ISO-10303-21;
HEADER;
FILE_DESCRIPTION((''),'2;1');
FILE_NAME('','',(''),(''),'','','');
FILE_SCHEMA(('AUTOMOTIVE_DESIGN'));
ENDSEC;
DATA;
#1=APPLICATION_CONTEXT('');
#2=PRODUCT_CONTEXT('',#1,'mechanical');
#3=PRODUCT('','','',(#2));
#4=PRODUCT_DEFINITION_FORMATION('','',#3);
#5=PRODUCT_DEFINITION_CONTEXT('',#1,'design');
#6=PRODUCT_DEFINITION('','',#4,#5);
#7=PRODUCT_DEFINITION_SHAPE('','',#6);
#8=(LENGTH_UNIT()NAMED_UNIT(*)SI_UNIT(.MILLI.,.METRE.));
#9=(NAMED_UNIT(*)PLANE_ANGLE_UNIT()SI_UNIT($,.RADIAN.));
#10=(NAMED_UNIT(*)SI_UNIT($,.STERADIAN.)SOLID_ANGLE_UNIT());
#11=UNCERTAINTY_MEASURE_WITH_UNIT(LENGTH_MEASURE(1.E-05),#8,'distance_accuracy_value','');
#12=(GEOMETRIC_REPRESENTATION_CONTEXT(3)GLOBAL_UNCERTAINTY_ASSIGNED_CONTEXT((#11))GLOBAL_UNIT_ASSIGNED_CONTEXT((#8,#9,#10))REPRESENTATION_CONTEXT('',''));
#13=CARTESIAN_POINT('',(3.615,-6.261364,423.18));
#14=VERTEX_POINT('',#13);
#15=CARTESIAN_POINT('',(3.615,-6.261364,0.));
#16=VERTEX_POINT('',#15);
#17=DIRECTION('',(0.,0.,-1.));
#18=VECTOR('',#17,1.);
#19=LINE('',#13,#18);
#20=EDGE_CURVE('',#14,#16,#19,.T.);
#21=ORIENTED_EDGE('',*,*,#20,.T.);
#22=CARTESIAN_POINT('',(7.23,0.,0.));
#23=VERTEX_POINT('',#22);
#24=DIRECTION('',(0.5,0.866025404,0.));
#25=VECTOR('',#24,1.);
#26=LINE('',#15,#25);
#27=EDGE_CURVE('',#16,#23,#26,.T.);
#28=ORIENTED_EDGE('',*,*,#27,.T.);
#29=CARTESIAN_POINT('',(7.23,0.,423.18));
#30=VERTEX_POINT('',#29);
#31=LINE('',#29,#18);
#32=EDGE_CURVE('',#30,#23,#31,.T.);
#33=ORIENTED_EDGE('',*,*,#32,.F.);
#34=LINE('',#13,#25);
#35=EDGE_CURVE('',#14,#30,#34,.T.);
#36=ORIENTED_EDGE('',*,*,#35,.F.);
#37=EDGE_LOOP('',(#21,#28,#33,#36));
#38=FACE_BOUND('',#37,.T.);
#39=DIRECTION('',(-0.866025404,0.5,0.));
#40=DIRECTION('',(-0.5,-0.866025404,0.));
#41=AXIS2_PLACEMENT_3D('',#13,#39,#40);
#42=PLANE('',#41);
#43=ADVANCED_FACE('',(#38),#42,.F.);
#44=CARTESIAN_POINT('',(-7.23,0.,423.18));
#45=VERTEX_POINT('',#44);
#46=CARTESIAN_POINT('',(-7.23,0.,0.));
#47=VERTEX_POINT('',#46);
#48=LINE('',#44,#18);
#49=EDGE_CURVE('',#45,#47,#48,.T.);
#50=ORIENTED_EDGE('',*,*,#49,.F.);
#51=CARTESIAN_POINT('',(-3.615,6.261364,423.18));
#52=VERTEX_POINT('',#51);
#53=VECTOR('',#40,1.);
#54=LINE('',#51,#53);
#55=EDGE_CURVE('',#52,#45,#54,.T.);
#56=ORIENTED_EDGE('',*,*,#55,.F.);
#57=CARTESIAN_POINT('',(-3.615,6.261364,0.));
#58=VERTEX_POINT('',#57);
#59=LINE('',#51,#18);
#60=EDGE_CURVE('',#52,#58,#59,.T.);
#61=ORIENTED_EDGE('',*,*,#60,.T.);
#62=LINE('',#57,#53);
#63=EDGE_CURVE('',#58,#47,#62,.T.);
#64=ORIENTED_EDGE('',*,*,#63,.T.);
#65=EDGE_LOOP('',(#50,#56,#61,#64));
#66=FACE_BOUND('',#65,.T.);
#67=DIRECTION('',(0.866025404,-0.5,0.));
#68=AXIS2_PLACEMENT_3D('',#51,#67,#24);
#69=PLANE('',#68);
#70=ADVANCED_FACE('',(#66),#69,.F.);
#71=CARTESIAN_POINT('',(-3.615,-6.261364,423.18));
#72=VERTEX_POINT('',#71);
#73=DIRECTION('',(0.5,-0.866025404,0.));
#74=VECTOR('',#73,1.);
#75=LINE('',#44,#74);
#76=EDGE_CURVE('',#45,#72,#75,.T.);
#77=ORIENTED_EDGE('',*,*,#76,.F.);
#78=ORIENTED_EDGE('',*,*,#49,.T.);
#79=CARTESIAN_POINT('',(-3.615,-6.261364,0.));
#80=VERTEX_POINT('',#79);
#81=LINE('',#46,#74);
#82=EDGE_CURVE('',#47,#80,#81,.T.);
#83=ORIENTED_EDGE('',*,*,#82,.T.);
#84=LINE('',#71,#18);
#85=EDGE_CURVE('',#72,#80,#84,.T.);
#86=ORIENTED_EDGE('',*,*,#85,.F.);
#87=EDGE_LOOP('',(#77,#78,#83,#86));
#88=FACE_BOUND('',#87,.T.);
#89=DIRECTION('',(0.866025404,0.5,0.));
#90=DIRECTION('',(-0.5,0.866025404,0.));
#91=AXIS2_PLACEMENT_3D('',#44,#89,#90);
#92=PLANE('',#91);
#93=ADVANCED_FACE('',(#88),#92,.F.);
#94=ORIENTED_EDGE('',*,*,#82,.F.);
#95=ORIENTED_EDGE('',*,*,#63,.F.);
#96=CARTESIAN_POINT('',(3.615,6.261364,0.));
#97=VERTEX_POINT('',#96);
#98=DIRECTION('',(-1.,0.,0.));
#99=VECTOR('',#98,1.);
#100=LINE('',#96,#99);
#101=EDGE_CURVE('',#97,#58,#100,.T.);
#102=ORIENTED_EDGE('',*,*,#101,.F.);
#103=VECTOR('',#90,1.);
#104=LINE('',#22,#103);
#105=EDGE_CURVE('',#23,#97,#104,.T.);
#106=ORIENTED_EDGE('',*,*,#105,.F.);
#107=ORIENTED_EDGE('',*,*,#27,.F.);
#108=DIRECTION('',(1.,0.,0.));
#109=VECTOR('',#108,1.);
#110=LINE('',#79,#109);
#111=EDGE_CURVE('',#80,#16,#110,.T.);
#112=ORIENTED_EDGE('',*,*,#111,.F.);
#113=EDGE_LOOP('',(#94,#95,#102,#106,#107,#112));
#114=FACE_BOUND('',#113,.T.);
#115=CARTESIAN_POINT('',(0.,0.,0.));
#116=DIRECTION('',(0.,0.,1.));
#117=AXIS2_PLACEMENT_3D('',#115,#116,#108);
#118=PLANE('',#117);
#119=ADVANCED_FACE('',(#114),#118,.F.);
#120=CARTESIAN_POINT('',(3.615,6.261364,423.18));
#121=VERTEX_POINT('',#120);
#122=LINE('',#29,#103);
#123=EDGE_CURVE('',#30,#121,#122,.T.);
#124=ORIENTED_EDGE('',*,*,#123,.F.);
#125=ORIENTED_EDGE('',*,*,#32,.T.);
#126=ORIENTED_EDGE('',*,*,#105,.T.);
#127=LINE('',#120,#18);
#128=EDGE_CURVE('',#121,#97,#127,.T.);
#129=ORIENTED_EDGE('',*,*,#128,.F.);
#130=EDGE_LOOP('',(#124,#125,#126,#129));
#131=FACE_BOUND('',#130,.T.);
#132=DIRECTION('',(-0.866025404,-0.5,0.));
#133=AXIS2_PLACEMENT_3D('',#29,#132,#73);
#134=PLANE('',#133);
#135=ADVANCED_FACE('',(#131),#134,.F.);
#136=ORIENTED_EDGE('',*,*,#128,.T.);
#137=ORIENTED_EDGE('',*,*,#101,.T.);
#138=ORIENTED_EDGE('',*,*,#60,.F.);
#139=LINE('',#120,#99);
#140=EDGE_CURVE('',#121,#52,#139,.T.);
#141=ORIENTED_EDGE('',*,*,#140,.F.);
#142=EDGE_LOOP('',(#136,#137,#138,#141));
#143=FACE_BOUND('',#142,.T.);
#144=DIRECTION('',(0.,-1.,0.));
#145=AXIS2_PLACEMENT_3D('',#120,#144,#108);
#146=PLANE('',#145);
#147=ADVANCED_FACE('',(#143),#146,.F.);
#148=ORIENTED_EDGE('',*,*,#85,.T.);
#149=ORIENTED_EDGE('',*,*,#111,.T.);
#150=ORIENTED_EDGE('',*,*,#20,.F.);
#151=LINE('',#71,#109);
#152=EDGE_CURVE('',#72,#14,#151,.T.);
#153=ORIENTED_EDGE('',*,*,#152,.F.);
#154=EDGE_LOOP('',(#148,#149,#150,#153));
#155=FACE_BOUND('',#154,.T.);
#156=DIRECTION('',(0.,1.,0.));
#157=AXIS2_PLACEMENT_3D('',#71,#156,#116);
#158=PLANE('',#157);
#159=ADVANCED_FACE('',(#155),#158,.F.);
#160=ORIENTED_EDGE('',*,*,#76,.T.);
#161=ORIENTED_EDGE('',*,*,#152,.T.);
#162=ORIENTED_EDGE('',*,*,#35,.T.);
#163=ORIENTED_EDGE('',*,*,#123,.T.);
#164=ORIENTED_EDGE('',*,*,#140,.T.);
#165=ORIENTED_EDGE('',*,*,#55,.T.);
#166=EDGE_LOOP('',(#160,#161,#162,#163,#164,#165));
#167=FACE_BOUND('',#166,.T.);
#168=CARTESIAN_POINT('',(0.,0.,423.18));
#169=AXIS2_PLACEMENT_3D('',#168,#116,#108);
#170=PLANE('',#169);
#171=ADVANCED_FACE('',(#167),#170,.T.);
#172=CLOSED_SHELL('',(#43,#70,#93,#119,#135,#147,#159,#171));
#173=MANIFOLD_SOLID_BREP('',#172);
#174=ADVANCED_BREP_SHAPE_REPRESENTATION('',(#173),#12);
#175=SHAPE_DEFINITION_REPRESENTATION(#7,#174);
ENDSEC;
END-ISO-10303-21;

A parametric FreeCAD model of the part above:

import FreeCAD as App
import Part
import Sketcher
Q = App.Units.Quantity


def add_polygon(sketch, points):
    """Adds a closed chain of lines whose ends are joined by coincident constraints."""
    first, n = sketch.GeometryCount, len(points)
    for a, b in zip(points, points[1:] + points[:1]):
        sketch.addGeometry(Part.LineSegment(App.Vector(*a, 0), App.Vector(*b, 0)), False)
    for i in range(n):
        sketch.addConstraint(Sketcher.Constraint("Coincident", first + i, 2, first + (i + 1) % n, 1))

doc = App.newDocument("Part")
body = doc.addObject("PartDesign::Body", "Body")

# Sketch on XY plane
sketch1 = doc.addObject("Sketcher::SketchObject", "Sketch")
body.addObject(sketch1)
sketch1.AttachmentSupport = (doc.XY_Plane, [""])
sketch1.MapMode = "FlatFace"
add_polygon(sketch1, [(-3.615, 6.261364), (-7.23, 0), (-3.615, -6.261364), (3.615, -6.261364), (7.23, 0), (3.615, 6.261364)])  # lines 0-5
sketch1.addConstraint([
    Sketcher.Constraint("Horizontal", 2),
    Sketcher.Constraint("Horizontal", 5),
    Sketcher.Constraint("Symmetric", 0, 2, 3, 2, -1, 1),
    Sketcher.Constraint("Symmetric", 1, 2, 4, 2, -1, 1),
    Sketcher.Constraint("PointOnObject", 0, 2, -1),
    Sketcher.Constraint("Parallel", 0, 3),
    Sketcher.Constraint("Vertical", 2, 2, 4, 2),
    Sketcher.Constraint("Angle", 0, Q("-120 deg")),
    Sketcher.Constraint("DistanceX", 2, 1, 2, 2, 7.23),
    Sketcher.Constraint("Distance", 0, 7.23),
])
pad1 = doc.addObject("PartDesign::Pad", "Pad")
body.addObject(pad1)
pad1.Profile = sketch1
pad1.Length = 423.18

doc.recompute()
